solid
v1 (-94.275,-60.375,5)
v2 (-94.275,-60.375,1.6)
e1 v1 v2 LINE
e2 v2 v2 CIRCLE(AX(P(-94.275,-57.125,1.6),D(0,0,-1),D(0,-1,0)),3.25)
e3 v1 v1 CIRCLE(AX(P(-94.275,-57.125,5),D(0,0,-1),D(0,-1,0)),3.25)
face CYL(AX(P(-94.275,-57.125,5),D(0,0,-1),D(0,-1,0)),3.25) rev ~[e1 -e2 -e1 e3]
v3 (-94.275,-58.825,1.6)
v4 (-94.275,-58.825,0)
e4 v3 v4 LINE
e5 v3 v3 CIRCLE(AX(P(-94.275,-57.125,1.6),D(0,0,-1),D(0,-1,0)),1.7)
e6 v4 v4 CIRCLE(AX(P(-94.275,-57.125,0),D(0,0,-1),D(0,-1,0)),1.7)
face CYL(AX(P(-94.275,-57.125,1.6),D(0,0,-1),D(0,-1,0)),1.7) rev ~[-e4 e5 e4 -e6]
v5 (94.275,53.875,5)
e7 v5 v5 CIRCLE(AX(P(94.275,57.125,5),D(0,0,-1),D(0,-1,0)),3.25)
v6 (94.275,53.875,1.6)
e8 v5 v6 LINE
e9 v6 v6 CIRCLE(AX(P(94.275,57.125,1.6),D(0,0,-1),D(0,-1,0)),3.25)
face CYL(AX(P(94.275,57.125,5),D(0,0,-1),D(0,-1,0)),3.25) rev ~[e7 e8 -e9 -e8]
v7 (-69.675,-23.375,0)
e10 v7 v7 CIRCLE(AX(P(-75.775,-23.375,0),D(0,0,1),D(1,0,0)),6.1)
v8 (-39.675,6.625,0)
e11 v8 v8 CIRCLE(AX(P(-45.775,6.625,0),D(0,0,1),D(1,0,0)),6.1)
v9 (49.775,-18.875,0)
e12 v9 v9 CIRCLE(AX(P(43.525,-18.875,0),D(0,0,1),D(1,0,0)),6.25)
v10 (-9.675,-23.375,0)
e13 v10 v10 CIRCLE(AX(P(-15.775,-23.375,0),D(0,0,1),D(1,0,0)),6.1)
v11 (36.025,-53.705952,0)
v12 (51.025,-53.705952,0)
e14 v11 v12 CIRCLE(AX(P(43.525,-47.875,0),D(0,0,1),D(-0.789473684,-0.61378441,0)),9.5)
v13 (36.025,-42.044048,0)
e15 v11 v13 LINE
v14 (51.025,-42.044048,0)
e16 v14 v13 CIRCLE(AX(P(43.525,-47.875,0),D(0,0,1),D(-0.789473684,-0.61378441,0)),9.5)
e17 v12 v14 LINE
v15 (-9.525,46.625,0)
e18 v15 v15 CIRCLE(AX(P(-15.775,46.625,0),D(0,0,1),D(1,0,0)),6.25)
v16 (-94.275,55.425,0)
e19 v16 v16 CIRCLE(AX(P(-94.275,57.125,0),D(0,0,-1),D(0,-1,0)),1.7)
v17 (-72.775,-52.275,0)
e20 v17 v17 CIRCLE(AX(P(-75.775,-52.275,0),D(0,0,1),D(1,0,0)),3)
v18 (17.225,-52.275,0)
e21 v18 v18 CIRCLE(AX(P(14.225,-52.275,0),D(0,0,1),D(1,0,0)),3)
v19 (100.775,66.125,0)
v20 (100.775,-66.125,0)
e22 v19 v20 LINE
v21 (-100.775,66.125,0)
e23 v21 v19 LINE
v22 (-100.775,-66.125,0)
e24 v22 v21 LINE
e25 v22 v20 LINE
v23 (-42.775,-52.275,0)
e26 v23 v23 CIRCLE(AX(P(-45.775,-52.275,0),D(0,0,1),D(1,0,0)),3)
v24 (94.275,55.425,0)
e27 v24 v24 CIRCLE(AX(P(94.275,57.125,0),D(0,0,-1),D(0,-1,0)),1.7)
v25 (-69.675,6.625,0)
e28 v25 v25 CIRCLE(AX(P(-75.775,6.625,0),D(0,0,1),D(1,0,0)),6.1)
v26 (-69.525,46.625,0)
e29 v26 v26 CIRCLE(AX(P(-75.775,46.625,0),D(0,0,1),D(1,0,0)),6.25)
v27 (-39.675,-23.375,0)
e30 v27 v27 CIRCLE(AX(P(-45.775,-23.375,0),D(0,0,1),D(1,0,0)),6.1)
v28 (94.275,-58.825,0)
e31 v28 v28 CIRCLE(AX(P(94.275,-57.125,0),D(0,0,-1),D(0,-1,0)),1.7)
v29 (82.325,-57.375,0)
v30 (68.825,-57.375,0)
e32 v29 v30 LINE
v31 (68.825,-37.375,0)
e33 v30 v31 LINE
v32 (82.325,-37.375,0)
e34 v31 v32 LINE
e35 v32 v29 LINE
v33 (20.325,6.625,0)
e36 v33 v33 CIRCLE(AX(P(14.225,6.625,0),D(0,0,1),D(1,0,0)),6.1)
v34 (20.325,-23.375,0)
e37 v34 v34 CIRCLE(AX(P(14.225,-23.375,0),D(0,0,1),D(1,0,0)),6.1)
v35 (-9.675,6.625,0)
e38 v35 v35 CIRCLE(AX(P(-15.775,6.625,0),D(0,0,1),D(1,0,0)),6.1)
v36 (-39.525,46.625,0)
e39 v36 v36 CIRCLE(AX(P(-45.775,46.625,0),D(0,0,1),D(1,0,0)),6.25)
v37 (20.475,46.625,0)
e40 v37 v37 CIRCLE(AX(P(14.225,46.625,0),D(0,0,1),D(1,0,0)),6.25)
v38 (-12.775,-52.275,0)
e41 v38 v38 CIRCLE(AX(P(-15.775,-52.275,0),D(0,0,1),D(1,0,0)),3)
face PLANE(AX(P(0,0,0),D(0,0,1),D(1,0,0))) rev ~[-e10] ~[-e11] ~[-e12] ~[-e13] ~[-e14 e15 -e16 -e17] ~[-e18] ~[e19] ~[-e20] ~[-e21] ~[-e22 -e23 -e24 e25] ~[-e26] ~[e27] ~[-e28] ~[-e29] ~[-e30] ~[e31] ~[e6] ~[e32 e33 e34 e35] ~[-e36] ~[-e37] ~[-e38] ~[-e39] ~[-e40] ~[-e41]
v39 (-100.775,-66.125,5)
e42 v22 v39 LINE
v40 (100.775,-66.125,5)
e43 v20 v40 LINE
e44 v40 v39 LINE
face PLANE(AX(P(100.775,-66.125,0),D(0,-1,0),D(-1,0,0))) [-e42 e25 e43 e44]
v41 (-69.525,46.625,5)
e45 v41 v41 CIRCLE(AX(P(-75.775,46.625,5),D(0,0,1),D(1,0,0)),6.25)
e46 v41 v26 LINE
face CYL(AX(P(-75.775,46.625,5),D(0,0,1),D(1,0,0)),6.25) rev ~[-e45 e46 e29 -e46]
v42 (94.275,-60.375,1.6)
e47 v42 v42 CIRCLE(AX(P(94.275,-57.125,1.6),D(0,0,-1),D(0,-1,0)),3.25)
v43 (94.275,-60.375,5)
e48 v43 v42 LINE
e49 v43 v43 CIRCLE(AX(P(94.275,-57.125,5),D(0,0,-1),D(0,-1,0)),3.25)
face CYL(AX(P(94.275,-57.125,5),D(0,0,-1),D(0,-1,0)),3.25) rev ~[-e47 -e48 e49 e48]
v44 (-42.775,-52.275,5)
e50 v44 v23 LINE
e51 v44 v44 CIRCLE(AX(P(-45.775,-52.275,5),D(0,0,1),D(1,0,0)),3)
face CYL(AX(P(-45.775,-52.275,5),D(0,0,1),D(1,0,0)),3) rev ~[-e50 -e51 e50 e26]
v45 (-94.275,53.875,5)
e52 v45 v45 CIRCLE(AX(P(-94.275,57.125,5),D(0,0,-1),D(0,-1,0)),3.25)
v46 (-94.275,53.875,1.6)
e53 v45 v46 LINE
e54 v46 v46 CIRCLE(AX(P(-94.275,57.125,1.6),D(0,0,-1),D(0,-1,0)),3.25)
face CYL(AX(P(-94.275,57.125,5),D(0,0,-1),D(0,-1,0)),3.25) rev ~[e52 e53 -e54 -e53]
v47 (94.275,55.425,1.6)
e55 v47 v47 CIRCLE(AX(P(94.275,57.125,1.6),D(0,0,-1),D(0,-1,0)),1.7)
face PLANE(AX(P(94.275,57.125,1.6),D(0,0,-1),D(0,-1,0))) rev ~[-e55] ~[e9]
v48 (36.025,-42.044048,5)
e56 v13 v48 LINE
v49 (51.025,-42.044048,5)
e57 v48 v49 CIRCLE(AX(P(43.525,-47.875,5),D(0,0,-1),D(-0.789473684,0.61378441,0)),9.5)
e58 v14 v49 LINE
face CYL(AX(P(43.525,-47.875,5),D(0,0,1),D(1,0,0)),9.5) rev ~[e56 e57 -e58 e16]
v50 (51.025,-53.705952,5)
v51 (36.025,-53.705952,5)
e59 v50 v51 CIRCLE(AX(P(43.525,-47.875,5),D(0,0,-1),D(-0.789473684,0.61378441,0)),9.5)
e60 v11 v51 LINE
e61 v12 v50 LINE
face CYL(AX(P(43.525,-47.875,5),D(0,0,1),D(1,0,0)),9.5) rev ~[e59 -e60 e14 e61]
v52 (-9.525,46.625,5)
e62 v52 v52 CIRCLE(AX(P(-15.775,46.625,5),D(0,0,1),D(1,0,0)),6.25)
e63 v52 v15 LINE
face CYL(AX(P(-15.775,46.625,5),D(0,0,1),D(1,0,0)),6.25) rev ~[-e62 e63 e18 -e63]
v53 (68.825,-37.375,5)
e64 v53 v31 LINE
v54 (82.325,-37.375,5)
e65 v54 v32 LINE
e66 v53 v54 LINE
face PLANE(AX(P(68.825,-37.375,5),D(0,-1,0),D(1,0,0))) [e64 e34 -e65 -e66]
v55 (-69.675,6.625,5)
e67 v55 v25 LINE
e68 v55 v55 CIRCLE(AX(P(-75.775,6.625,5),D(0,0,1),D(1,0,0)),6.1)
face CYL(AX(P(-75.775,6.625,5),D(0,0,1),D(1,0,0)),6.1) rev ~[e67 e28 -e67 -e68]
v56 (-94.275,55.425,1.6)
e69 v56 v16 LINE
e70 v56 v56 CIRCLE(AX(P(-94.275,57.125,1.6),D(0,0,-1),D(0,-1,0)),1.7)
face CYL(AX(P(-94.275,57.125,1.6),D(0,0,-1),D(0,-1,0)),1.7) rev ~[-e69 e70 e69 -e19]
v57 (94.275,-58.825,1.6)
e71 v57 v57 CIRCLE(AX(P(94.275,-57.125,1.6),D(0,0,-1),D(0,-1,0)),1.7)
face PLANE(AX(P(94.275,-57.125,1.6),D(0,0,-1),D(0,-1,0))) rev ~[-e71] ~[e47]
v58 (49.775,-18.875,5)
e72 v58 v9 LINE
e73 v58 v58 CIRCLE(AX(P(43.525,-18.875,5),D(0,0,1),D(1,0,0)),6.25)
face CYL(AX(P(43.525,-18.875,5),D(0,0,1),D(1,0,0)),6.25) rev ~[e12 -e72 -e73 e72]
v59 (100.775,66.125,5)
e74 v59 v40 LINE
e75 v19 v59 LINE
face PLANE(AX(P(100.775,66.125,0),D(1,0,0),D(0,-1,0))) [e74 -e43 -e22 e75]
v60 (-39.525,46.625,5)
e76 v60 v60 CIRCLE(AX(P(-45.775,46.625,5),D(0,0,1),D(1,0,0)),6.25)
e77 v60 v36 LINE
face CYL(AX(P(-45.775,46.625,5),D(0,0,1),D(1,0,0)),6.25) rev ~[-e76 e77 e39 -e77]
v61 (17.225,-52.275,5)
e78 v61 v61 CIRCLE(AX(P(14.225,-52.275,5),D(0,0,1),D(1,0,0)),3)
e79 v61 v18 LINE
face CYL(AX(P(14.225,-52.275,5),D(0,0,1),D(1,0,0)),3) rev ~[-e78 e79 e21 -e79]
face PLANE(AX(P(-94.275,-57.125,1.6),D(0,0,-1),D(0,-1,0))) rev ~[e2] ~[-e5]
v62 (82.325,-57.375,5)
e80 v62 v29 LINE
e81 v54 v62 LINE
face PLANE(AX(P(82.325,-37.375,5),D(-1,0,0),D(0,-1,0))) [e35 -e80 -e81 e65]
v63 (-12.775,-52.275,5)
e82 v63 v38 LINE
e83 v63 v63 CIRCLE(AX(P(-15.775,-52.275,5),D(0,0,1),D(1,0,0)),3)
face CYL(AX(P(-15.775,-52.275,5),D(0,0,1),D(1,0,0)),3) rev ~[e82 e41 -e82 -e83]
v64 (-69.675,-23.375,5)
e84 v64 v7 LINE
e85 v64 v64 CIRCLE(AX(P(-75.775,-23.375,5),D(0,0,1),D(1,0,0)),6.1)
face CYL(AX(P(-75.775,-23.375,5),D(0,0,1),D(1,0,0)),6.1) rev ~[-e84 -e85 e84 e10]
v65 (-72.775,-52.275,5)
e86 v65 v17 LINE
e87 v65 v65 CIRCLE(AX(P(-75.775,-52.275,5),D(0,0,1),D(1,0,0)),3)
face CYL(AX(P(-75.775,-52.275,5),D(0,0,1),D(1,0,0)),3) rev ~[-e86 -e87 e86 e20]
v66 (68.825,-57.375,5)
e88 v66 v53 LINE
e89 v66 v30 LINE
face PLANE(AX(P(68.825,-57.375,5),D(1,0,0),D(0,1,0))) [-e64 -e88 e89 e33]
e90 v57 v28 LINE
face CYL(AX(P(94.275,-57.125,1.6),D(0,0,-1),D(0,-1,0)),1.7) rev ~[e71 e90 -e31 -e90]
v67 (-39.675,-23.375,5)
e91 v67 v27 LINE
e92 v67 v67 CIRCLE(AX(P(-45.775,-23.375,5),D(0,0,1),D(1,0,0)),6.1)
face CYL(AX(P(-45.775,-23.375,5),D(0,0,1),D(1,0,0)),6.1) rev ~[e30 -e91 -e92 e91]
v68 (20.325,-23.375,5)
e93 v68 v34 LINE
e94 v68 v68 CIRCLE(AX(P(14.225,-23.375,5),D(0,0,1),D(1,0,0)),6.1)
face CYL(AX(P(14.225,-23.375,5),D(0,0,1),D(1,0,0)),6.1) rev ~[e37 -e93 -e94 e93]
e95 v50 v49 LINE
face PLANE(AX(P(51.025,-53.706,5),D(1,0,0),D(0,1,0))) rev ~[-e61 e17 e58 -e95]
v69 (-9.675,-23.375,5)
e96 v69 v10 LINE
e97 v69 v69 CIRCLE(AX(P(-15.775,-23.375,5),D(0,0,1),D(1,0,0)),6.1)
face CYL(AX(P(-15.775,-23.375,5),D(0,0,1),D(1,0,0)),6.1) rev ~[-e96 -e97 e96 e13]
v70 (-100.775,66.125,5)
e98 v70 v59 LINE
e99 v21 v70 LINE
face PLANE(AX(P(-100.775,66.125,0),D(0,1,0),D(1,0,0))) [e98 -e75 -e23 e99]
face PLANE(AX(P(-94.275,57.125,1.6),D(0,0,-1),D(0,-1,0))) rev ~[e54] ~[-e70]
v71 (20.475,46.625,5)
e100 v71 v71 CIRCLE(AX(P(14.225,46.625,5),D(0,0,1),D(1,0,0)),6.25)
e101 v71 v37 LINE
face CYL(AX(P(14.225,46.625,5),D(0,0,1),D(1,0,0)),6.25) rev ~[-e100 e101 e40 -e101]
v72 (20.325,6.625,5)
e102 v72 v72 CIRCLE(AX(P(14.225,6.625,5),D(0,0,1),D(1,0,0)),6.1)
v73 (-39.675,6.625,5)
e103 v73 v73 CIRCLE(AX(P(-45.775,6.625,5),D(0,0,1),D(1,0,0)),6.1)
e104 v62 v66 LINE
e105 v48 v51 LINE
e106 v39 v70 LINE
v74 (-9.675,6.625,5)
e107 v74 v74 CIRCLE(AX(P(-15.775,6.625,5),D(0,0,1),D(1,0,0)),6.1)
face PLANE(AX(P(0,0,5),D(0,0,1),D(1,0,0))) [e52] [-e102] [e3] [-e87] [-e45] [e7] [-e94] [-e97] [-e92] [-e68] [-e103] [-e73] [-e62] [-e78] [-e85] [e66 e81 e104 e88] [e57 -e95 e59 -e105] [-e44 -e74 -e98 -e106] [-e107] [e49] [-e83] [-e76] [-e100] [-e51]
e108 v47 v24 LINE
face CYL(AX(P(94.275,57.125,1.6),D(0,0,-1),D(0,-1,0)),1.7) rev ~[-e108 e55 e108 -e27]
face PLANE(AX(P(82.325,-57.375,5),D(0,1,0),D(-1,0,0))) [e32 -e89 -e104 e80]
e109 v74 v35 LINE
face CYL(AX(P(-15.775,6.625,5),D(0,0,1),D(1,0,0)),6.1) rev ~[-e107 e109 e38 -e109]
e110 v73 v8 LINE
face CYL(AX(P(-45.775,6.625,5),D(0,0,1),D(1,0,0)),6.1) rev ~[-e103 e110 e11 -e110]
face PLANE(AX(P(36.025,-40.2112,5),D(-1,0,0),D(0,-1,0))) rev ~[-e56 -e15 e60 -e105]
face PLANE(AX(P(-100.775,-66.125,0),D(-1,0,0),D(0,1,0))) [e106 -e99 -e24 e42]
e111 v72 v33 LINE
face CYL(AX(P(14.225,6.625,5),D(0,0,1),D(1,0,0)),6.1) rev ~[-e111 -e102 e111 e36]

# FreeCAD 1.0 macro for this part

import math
import FreeCAD as App
import Part
import Sketcher
from FreeCAD import Vector

doc = App.newDocument("Part")
body = doc.addObject("PartDesign::Body", "Body")

# Sketch on XY plane
sketch1 = body.newObject("Sketcher::SketchObject", "Sketch")
sketch1.AttachmentSupport = (doc.getObject("XY_Plane"), [""])
sketch1.MapMode = "FlatFace"
sketch1.addGeometry(Part.LineSegment(Vector(-101, -66, 0), Vector(101, -66, 0)), False)
sketch1.addGeometry(Part.LineSegment(Vector(101, -66, 0), Vector(101, 66, 0)), False)
sketch1.addGeometry(Part.LineSegment(Vector(101, 66, 0), Vector(-101, 66, 0)), False)
sketch1.addGeometry(Part.LineSegment(Vector(-101, 66, 0), Vector(-101, -66, 0)), False)
sketch1.addConstraint(Sketcher.Constraint("Coincident", 0, 2, 1, 1))
sketch1.addConstraint(Sketcher.Constraint("Coincident", 1, 2, 2, 1))
sketch1.addConstraint(Sketcher.Constraint("Coincident", 2, 2, 3, 1))
sketch1.addConstraint(Sketcher.Constraint("Coincident", 3, 2, 0, 1))
sketch1.addConstraint(Sketcher.Constraint("Horizontal", 0))
sketch1.addConstraint(Sketcher.Constraint("Vertical", 1))
sketch1.addConstraint(Sketcher.Constraint("Horizontal", 2))
sketch1.addConstraint(Sketcher.Constraint("Vertical", 3))
sketch1.addConstraint(Sketcher.Constraint("Symmetric", 0, 2, 2, 2, -1, 1))
sketch1.addConstraint(Sketcher.Constraint("DistanceX", 0, 1, 0, 2, 201.55))
sketch1.addConstraint(Sketcher.Constraint("DistanceY", 1, 1, 1, 2, 132.25))
pad1 = body.newObject("PartDesign::Pad", "Pad")
pad1.Profile = sketch1
pad1.Length = 5

# Sketch on XY plane
sketch2 = body.newObject("Sketcher::SketchObject", "Sketch001")
sketch2.AttachmentSupport = (doc.getObject("XY_Plane"), [""])
sketch2.MapMode = "FlatFace"
sketch2.AttachmentOffset = App.Placement(Vector(0, 0, 5), App.Rotation())
sketch2.addGeometry(Part.Circle(Vector(-94.3, -57.1, 0), Vector(0, 0, 1), 1.7), False)
sketch2.addGeometry(Part.Circle(Vector(94.3, 57.1, 0), Vector(0, 0, 1), 1.7), False)
sketch2.addGeometry(Part.Circle(Vector(94.3, -57.1, 0), Vector(0, 0, 1), 1.7), False)
sketch2.addGeometry(Part.Circle(Vector(-94.3, 57.1, 0), Vector(0, 0, 1), 1.7), False)
sketch2.addConstraint(Sketcher.Constraint("Equal", 0, 1))
sketch2.addConstraint(Sketcher.Constraint("Equal", 1, 2))
sketch2.addConstraint(Sketcher.Constraint("Equal", 2, 3))
sketch2.addConstraint(Sketcher.Constraint("Symmetric", 0, 3, 1, 3, -1, 1))
sketch2.addConstraint(Sketcher.Constraint("Symmetric", 2, 3, 3, 3, -1, 1))
sketch2.addConstraint(Sketcher.Constraint("Symmetric", 0, 3, 2, 3, -2))
sketch2.addConstraint(Sketcher.Constraint("Diameter", 0, 3.4))
sketch2.addConstraint(Sketcher.Constraint("DistanceX", 0, 3, 1, 3, 188.55))
sketch2.addConstraint(Sketcher.Constraint("DistanceY", 0, 3, 1, 3, 114.25))
doc.recompute()
hole = body.newObject("PartDesign::Hole", "Hole")
hole.Profile = sketch2
hole.ThreadType = "None"
hole.Diameter = 3.4
hole.DepthType = "ThroughAll"
hole.HoleCutType = "Counterbore"
hole.HoleCutDiameter = 6.5
hole.HoleCutDepth = 3.4

# Sketch on XY plane
sketch3 = body.newObject("Sketcher::SketchObject", "Sketch002")
sketch3.AttachmentSupport = (doc.getObject("XY_Plane"), [""])
sketch3.MapMode = "FlatFace"
sketch3.AttachmentOffset = App.Placement(Vector(0, 0, 5), App.Rotation())
sketch3.addGeometry(Part.Circle(Vector(44, -19, 0), Vector(0, 0, 1), 6), False)
sketch3.addConstraint(Sketcher.Constraint("Diameter", 0, 12.5))
sketch3.addConstraint(Sketcher.Constraint("DistanceX", -1, 1, 0, 3, 43.525))
sketch3.addConstraint(Sketcher.Constraint("DistanceY", 0, 3, -1, 1, 18.875))
pocket1 = body.newObject("PartDesign::Pocket", "Pocket")
pocket1.Profile = sketch3
pocket1.Length = 10

# Sketch on XY plane
sketch4 = body.newObject("Sketcher::SketchObject", "Sketch003")
sketch4.AttachmentSupport = (doc.getObject("XY_Plane"), [""])
sketch4.MapMode = "FlatFace"
sketch4.AttachmentOffset = App.Placement(Vector(0, 0, 5), App.Rotation())
sketch4.addGeometry(Part.LineSegment(Vector(82, -37, 0), Vector(69, -37, 0)), False)
sketch4.addGeometry(Part.LineSegment(Vector(69, -37, 0), Vector(69, -57, 0)), False)
sketch4.addGeometry(Part.LineSegment(Vector(69, -57, 0), Vector(82, -57, 0)), False)
sketch4.addGeometry(Part.LineSegment(Vector(82, -57, 0), Vector(82, -37, 0)), False)
sketch4.addConstraint(Sketcher.Constraint("Coincident", 0, 2, 1, 1))
sketch4.addConstraint(Sketcher.Constraint("Coincident", 1, 2, 2, 1))
sketch4.addConstraint(Sketcher.Constraint("Coincident", 2, 2, 3, 1))
sketch4.addConstraint(Sketcher.Constraint("Coincident", 3, 2, 0, 1))
sketch4.addConstraint(Sketcher.Constraint("Horizontal", 0))
sketch4.addConstraint(Sketcher.Constraint("Vertical", 1))
sketch4.addConstraint(Sketcher.Constraint("Horizontal", 2))
sketch4.addConstraint(Sketcher.Constraint("Vertical", 3))
sketch4.addConstraint(Sketcher.Constraint("DistanceY", 1, 2, 1, 1, 20.0))
sketch4.addConstraint(Sketcher.Constraint("DistanceX", 0, 2, 0, 1, 13.5))
sketch4.addConstraint(Sketcher.Constraint("DistanceX", -1, 1, 0, 2, 68.825))
sketch4.addConstraint(Sketcher.Constraint("DistanceY", 0, 2, -1, 1, 37.375))
pocket2 = body.newObject("PartDesign::Pocket", "Pocket001")
pocket2.Profile = sketch4
pocket2.Type = "ThroughAll"

# Sketch on XY plane
sketch5 = body.newObject("Sketcher::SketchObject", "Sketch004")
sketch5.AttachmentSupport = (doc.getObject("XY_Plane"), [""])
sketch5.MapMode = "FlatFace"
sketch5.AttachmentOffset = App.Placement(Vector(0, 0, 5), App.Rotation())
sketch5.addGeometry(Part.Circle(Vector(44, -48, 0), Vector(0, 0, 1), 10), False)
sketch5.addConstraint(Sketcher.Constraint("Diameter", 0, 19.0))
sketch5.addConstraint(Sketcher.Constraint("DistanceX", -1, 1, 0, 3, 43.525))
sketch5.addConstraint(Sketcher.Constraint("DistanceY", 0, 3, -1, 1, 47.875))
pocket3 = body.newObject("PartDesign::Pocket", "Pocket002")
pocket3.Profile = sketch5
pocket3.Type = "ThroughAll"

# Sketch on XY plane
sketch6 = body.newObject("Sketcher::SketchObject", "Sketch005")
sketch6.AttachmentSupport = (doc.getObject("XY_Plane"), [""])
sketch6.MapMode = "FlatFace"
sketch6.AttachmentOffset = App.Placement(Vector(0, 0, 5), App.Rotation())
sketch6.addGeometry(Part.Circle(Vector(-76, 47, 0), Vector(0, 0, 1), 6), False)
sketch6.addConstraint(Sketcher.Constraint("Diameter", 0, 12.5))
sketch6.addConstraint(Sketcher.Constraint("DistanceX", 0, 3, -1, 1, 75.775))
sketch6.addConstraint(Sketcher.Constraint("DistanceY", -1, 1, 0, 3, 46.625))
pocket4 = body.newObject("PartDesign::Pocket", "Pocket003")
pocket4.Profile = sketch6
pocket4.Type = "ThroughAll"

# Sketch on XY plane
sketch7 = body.newObject("Sketcher::SketchObject", "Sketch006")
sketch7.AttachmentSupport = (doc.getObject("XY_Plane"), [""])
sketch7.MapMode = "FlatFace"
sketch7.AttachmentOffset = App.Placement(Vector(0, 0, 5), App.Rotation())
sketch7.addGeometry(Part.Circle(Vector(-46, 47, 0), Vector(0, 0, 1), 6), False)
sketch7.addConstraint(Sketcher.Constraint("Diameter", 0, 12.5))
sketch7.addConstraint(Sketcher.Constraint("DistanceX", 0, 3, -1, 1, 45.775))
sketch7.addConstraint(Sketcher.Constraint("DistanceY", -1, 1, 0, 3, 46.625))
pocket5 = body.newObject("PartDesign::Pocket", "Pocket004")
pocket5.Profile = sketch7
pocket5.Type = "ThroughAll"

# Sketch on XY plane
sketch8 = body.newObject("Sketcher::SketchObject", "Sketch007")
sketch8.AttachmentSupport = (doc.getObject("XY_Plane"), [""])
sketch8.MapMode = "FlatFace"
sketch8.AttachmentOffset = App.Placement(Vector(0, 0, 5), App.Rotation())
sketch8.addGeometry(Part.Circle(Vector(-16, 47, 0), Vector(0, 0, 1), 6), False)
sketch8.addConstraint(Sketcher.Constraint("Diameter", 0, 12.5))
sketch8.addConstraint(Sketcher.Constraint("DistanceX", 0, 3, -1, 1, 15.775))
sketch8.addConstraint(Sketcher.Constraint("DistanceY", -1, 1, 0, 3, 46.625))
pocket6 = body.newObject("PartDesign::Pocket", "Pocket005")
pocket6.Profile = sketch8
pocket6.Type = "ThroughAll"

# Sketch on XY plane
sketch9 = body.newObject("Sketcher::SketchObject", "Sketch008")
sketch9.AttachmentSupport = (doc.getObject("XY_Plane"), [""])
sketch9.MapMode = "FlatFace"
sketch9.AttachmentOffset = App.Placement(Vector(0, 0, 5), App.Rotation())
sketch9.addGeometry(Part.Circle(Vector(14, 47, 0), Vector(0, 0, 1), 6), False)
sketch9.addConstraint(Sketcher.Constraint("Diameter", 0, 12.5))
sketch9.addConstraint(Sketcher.Constraint("DistanceX", -1, 1, 0, 3, 14.225))
sketch9.addConstraint(Sketcher.Constraint("DistanceY", -1, 1, 0, 3, 46.625))
pocket7 = body.newObject("PartDesign::Pocket", "Pocket006")
pocket7.Profile = sketch9
pocket7.Type = "ThroughAll"

# Sketch on XY plane
sketch10 = body.newObject("Sketcher::SketchObject", "Sketch009")
sketch10.AttachmentSupport = (doc.getObject("XY_Plane"), [""])
sketch10.MapMode = "FlatFace"
sketch10.AttachmentOffset = App.Placement(Vector(0, 0, 5), App.Rotation())
sketch10.addGeometry(Part.Circle(Vector(-76, 7, 0), Vector(0, 0, 1), 6), False)
sketch10.addConstraint(Sketcher.Constraint("Diameter", 0, 12.2))
sketch10.addConstraint(Sketcher.Constraint("DistanceX", 0, 3, -1, 1, 75.775))
sketch10.addConstraint(Sketcher.Constraint("DistanceY", -1, 1, 0, 3, 6.625))
pocket8 = body.newObject("PartDesign::Pocket", "Pocket007")
pocket8.Profile = sketch10
pocket8.Type = "ThroughAll"

# Sketch on XY plane
sketch11 = body.newObject("Sketcher::SketchObject", "Sketch010")
sketch11.AttachmentSupport = (doc.getObject("XY_Plane"), [""])
sketch11.MapMode = "FlatFace"
sketch11.AttachmentOffset = App.Placement(Vector(0, 0, 5), App.Rotation())
sketch11.addGeometry(Part.Circle(Vector(-46, 7, 0), Vector(0, 0, 1), 6), False)
sketch11.addConstraint(Sketcher.Constraint("Diameter", 0, 12.2))
sketch11.addConstraint(Sketcher.Constraint("DistanceX", 0, 3, -1, 1, 45.775))
sketch11.addConstraint(Sketcher.Constraint("DistanceY", -1, 1, 0, 3, 6.625))
pocket9 = body.newObject("PartDesign::Pocket", "Pocket008")
pocket9.Profile = sketch11
pocket9.Type = "ThroughAll"

# Sketch on XY plane
sketch12 = body.newObject("Sketcher::SketchObject", "Sketch011")
sketch12.AttachmentSupport = (doc.getObject("XY_Plane"), [""])
sketch12.MapMode = "FlatFace"
sketch12.AttachmentOffset = App.Placement(Vector(0, 0, 5), App.Rotation())
sketch12.addGeometry(Part.Circle(Vector(-16, 7, 0), Vector(0, 0, 1), 6), False)
sketch12.addConstraint(Sketcher.Constraint("Diameter", 0, 12.2))
sketch12.addConstraint(Sketcher.Constraint("DistanceX", 0, 3, -1, 1, 15.775))
sketch12.addConstraint(Sketcher.Constraint("DistanceY", -1, 1, 0, 3, 6.625))
pocket10 = body.newObject("PartDesign::Pocket", "Pocket009")
pocket10.Profile = sketch12
pocket10.Type = "ThroughAll"

# Sketch on XY plane
sketch13 = body.newObject("Sketcher::SketchObject", "Sketch012")
sketch13.AttachmentSupport = (doc.getObject("XY_Plane"), [""])
sketch13.MapMode = "FlatFace"
sketch13.AttachmentOffset = App.Placement(Vector(0, 0, 5), App.Rotation())
sketch13.addGeometry(Part.Circle(Vector(14, 7, 0), Vector(0, 0, 1), 6), False)
sketch13.addConstraint(Sketcher.Constraint("Diameter", 0, 12.2))
sketch13.addConstraint(Sketcher.Constraint("DistanceX", -1, 1, 0, 3, 14.225))
sketch13.addConstraint(Sketcher.Constraint("DistanceY", -1, 1, 0, 3, 6.625))
pocket11 = body.newObject("PartDesign::Pocket", "Pocket010")
pocket11.Profile = sketch13
pocket11.Type = "ThroughAll"

# Sketch on XY plane
sketch14 = body.newObject("Sketcher::SketchObject", "Sketch013")
sketch14.AttachmentSupport = (doc.getObject("XY_Plane"), [""])
sketch14.MapMode = "FlatFace"
sketch14.AttachmentOffset = App.Placement(Vector(0, 0, 5), App.Rotation())
sketch14.addGeometry(Part.Circle(Vector(-76, -23, 0), Vector(0, 0, 1), 6), False)
sketch14.addConstraint(Sketcher.Constraint("Diameter", 0, 12.2))
sketch14.addConstraint(Sketcher.Constraint("DistanceX", 0, 3, -1, 1, 75.775))
sketch14.addConstraint(Sketcher.Constraint("DistanceY", 0, 3, -1, 1, 23.375))
pocket12 = body.newObject("PartDesign::Pocket", "Pocket011")
pocket12.Profile = sketch14
pocket12.Type = "ThroughAll"

# Sketch on XY plane
sketch15 = body.newObject("Sketcher::SketchObject", "Sketch014")
sketch15.AttachmentSupport = (doc.getObject("XY_Plane"), [""])
sketch15.MapMode = "FlatFace"
sketch15.AttachmentOffset = App.Placement(Vector(0, 0, 5), App.Rotation())
sketch15.addGeometry(Part.Circle(Vector(-46, -23, 0), Vector(0, 0, 1), 6), False)
sketch15.addConstraint(Sketcher.Constraint("Diameter", 0, 12.2))
sketch15.addConstraint(Sketcher.Constraint("DistanceX", 0, 3, -1, 1, 45.775))
sketch15.addConstraint(Sketcher.Constraint("DistanceY", 0, 3, -1, 1, 23.375))
pocket13 = body.newObject("PartDesign::Pocket", "Pocket012")
pocket13.Profile = sketch15
pocket13.Type = "ThroughAll"

# Sketch on XY plane
sketch16 = body.newObject("Sketcher::SketchObject", "Sketch015")
sketch16.AttachmentSupport = (doc.getObject("XY_Plane"), [""])
sketch16.MapMode = "FlatFace"
sketch16.AttachmentOffset = App.Placement(Vector(0, 0, 5), App.Rotation())
sketch16.addGeometry(Part.Circle(Vector(-16, -23, 0), Vector(0, 0, 1), 6), False)
sketch16.addConstraint(Sketcher.Constraint("Diameter", 0, 12.2))
sketch16.addConstraint(Sketcher.Constraint("DistanceX", 0, 3, -1, 1, 15.775))
sketch16.addConstraint(Sketcher.Constraint("DistanceY", 0, 3, -1, 1, 23.375))
pocket14 = body.newObject("PartDesign::Pocket", "Pocket013")
pocket14.Profile = sketch16
pocket14.Type = "ThroughAll"

# Sketch on XY plane
sketch17 = body.newObject("Sketcher::SketchObject", "Sketch016")
sketch17.AttachmentSupport = (doc.getObject("XY_Plane"), [""])
sketch17.MapMode = "FlatFace"
sketch17.AttachmentOffset = App.Placement(Vector(0, 0, 5), App.Rotation())
sketch17.addGeometry(Part.Circle(Vector(14, -23, 0), Vector(0, 0, 1), 6), False)
sketch17.addConstraint(Sketcher.Constraint("Diameter", 0, 12.2))
sketch17.addConstraint(Sketcher.Constraint("DistanceX", -1, 1, 0, 3, 14.225))
sketch17.addConstraint(Sketcher.Constraint("DistanceY", 0, 3, -1, 1, 23.375))
pocket15 = body.newObject("PartDesign::Pocket", "Pocket014")
pocket15.Profile = sketch17
pocket15.Type = "ThroughAll"

# Sketch on XY plane
sketch18 = body.newObject("Sketcher::SketchObject", "Sketch017")
sketch18.AttachmentSupport = (doc.getObject("XY_Plane"), [""])
sketch18.MapMode = "FlatFace"
sketch18.AttachmentOffset = App.Placement(Vector(0, 0, 5), App.Rotation())
sketch18.addGeometry(Part.LineSegment(Vector(36, -40, 0), Vector(-86, -40, 0)), False)
sketch18.addGeometry(Part.LineSegment(Vector(-86, -40, 0), Vector(-86, -66, 0)), False)
sketch18.addGeometry(Part.LineSegment(Vector(-86, -66, 0), Vector(36, -66, 0)), False)
sketch18.addGeometry(Part.LineSegment(Vector(36, -66, 0), Vector(36, -40, 0)), False)
sketch18.addConstraint(Sketcher.Constraint("Coincident", 0, 2, 1, 1))
sketch18.addConstraint(Sketcher.Constraint("Coincident", 1, 2, 2, 1))
sketch18.addConstraint(Sketcher.Constraint("Coincident", 2, 2, 3, 1))
sketch18.addConstraint(Sketcher.Constraint("Coincident", 3, 2, 0, 1))
sketch18.addConstraint(Sketcher.Constraint("Horizontal", 0))
sketch18.addConstraint(Sketcher.Constraint("Vertical", 1))
sketch18.addConstraint(Sketcher.Constraint("Horizontal", 2))
sketch18.addConstraint(Sketcher.Constraint("Vertical", 3))
sketch18.addConstraint(Sketcher.Constraint("DistanceX", 0, 2, 0, 1, 121.8))
sketch18.addConstraint(Sketcher.Constraint("DistanceY", 1, 2, 1, 1, 25.9138))
sketch18.addConstraint(Sketcher.Constraint("DistanceX", 0, 2, -1, 1, 85.775))
sketch18.addConstraint(Sketcher.Constraint("DistanceY", 1, 2, -1, 1, 66.125))
pad2 = body.newObject("PartDesign::Pad", "Pad001")
pad2.Profile = sketch18
pad2.Length = 5
pad2.Reversed = True

# Sketch on XY plane
sketch19 = body.newObject("Sketcher::SketchObject", "Sketch018")
sketch19.AttachmentSupport = (doc.getObject("XY_Plane"), [""])
sketch19.MapMode = "FlatFace"
sketch19.AttachmentOffset = App.Placement(Vector(0, 0, 5), App.Rotation())
sketch19.addGeometry(Part.ArcOfCircle(Part.Circle(Vector(44, -48, 0), Vector(0, 0, 1), 10), math.radians(-38), math.radians(38)), False)
sketch19.addGeometry(Part.LineSegment(Vector(51, -42, 0), Vector(51, -54, 0)), False)
sketch19.addConstraint(Sketcher.Constraint("Coincident", 0, 1, 1, 2))
sketch19.addConstraint(Sketcher.Constraint("Coincident", 1, 1, 0, 2))
sketch19.addConstraint(Sketcher.Constraint("Vertical", 1))
sketch19.addConstraint(Sketcher.Constraint("Radius", 0, 9.5))
sketch19.addConstraint(Sketcher.Constraint("DistanceX", 0, 3, 0, 1, 7.5))
sketch19.addConstraint(Sketcher.Constraint("DistanceX", -1, 1, 0, 3, 43.525))
sketch19.addConstraint(Sketcher.Constraint("DistanceY", 0, 3, -1, 1, 47.875))
pad3 = body.newObject("PartDesign::Pad", "Pad002")
pad3.Profile = sketch19
pad3.Length = 5
pad3.Reversed = True

# Sketch on XY plane
sketch20 = body.newObject("Sketcher::SketchObject", "Sketch019")
sketch20.AttachmentSupport = (doc.getObject("XY_Plane"), [""])
sketch20.MapMode = "FlatFace"
sketch20.AttachmentOffset = App.Placement(Vector(0, 0, 5), App.Rotation())
sketch20.addGeometry(Part.Circle(Vector(-75.8, -52.3, 0), Vector(0, 0, 1), 3), False)
sketch20.addConstraint(Sketcher.Constraint("Diameter", 0, 6.0))
sketch20.addConstraint(Sketcher.Constraint("DistanceX", 0, 3, -1, 1, 75.775))
sketch20.addConstraint(Sketcher.Constraint("DistanceY", 0, 3, -1, 1, 52.275))
pocket16 = body.newObject("PartDesign::Pocket", "Pocket015")
pocket16.Profile = sketch20
pocket16.Type = "ThroughAll"

# Sketch on XY plane
sketch21 = body.newObject("Sketcher::SketchObject", "Sketch020")
sketch21.AttachmentSupport = (doc.getObject("XY_Plane"), [""])
sketch21.MapMode = "FlatFace"
sketch21.AttachmentOffset = App.Placement(Vector(0, 0, 5), App.Rotation())
sketch21.addGeometry(Part.Circle(Vector(-45.8, -52.3, 0), Vector(0, 0, 1), 3), False)
sketch21.addConstraint(Sketcher.Constraint("Diameter", 0, 6.0))
sketch21.addConstraint(Sketcher.Constraint("DistanceX", 0, 3, -1, 1, 45.775))
sketch21.addConstraint(Sketcher.Constraint("DistanceY", 0, 3, -1, 1, 52.275))
pocket17 = body.newObject("PartDesign::Pocket", "Pocket016")
pocket17.Profile = sketch21
pocket17.Type = "ThroughAll"

# Sketch on XY plane
sketch22 = body.newObject("Sketcher::SketchObject", "Sketch021")
sketch22.AttachmentSupport = (doc.getObject("XY_Plane"), [""])
sketch22.MapMode = "FlatFace"
sketch22.AttachmentOffset = App.Placement(Vector(0, 0, 5), App.Rotation())
sketch22.addGeometry(Part.Circle(Vector(-15.8, -52.3, 0), Vector(0, 0, 1), 3), False)
sketch22.addConstraint(Sketcher.Constraint("Diameter", 0, 6.0))
sketch22.addConstraint(Sketcher.Constraint("DistanceX", 0, 3, -1, 1, 15.775))
sketch22.addConstraint(Sketcher.Constraint("DistanceY", 0, 3, -1, 1, 52.275))
pocket18 = body.newObject("PartDesign::Pocket", "Pocket017")
pocket18.Profile = sketch22
pocket18.Type = "ThroughAll"

# Sketch on XY plane
sketch23 = body.newObject("Sketcher::SketchObject", "Sketch022")
sketch23.AttachmentSupport = (doc.getObject("XY_Plane"), [""])
sketch23.MapMode = "FlatFace"
sketch23.AttachmentOffset = App.Placement(Vector(0, 0, 5), App.Rotation())
sketch23.addGeometry(Part.Circle(Vector(14.2, -52.3, 0), Vector(0, 0, 1), 3), False)
sketch23.addConstraint(Sketcher.Constraint("Diameter", 0, 6.0))
sketch23.addConstraint(Sketcher.Constraint("DistanceX", -1, 1, 0, 3, 14.225))
sketch23.addConstraint(Sketcher.Constraint("DistanceY", 0, 3, -1, 1, 52.275))
pocket19 = body.newObject("PartDesign::Pocket", "Pocket018")
pocket19.Profile = sketch23
pocket19.Type = "ThroughAll"

doc.recompute()
